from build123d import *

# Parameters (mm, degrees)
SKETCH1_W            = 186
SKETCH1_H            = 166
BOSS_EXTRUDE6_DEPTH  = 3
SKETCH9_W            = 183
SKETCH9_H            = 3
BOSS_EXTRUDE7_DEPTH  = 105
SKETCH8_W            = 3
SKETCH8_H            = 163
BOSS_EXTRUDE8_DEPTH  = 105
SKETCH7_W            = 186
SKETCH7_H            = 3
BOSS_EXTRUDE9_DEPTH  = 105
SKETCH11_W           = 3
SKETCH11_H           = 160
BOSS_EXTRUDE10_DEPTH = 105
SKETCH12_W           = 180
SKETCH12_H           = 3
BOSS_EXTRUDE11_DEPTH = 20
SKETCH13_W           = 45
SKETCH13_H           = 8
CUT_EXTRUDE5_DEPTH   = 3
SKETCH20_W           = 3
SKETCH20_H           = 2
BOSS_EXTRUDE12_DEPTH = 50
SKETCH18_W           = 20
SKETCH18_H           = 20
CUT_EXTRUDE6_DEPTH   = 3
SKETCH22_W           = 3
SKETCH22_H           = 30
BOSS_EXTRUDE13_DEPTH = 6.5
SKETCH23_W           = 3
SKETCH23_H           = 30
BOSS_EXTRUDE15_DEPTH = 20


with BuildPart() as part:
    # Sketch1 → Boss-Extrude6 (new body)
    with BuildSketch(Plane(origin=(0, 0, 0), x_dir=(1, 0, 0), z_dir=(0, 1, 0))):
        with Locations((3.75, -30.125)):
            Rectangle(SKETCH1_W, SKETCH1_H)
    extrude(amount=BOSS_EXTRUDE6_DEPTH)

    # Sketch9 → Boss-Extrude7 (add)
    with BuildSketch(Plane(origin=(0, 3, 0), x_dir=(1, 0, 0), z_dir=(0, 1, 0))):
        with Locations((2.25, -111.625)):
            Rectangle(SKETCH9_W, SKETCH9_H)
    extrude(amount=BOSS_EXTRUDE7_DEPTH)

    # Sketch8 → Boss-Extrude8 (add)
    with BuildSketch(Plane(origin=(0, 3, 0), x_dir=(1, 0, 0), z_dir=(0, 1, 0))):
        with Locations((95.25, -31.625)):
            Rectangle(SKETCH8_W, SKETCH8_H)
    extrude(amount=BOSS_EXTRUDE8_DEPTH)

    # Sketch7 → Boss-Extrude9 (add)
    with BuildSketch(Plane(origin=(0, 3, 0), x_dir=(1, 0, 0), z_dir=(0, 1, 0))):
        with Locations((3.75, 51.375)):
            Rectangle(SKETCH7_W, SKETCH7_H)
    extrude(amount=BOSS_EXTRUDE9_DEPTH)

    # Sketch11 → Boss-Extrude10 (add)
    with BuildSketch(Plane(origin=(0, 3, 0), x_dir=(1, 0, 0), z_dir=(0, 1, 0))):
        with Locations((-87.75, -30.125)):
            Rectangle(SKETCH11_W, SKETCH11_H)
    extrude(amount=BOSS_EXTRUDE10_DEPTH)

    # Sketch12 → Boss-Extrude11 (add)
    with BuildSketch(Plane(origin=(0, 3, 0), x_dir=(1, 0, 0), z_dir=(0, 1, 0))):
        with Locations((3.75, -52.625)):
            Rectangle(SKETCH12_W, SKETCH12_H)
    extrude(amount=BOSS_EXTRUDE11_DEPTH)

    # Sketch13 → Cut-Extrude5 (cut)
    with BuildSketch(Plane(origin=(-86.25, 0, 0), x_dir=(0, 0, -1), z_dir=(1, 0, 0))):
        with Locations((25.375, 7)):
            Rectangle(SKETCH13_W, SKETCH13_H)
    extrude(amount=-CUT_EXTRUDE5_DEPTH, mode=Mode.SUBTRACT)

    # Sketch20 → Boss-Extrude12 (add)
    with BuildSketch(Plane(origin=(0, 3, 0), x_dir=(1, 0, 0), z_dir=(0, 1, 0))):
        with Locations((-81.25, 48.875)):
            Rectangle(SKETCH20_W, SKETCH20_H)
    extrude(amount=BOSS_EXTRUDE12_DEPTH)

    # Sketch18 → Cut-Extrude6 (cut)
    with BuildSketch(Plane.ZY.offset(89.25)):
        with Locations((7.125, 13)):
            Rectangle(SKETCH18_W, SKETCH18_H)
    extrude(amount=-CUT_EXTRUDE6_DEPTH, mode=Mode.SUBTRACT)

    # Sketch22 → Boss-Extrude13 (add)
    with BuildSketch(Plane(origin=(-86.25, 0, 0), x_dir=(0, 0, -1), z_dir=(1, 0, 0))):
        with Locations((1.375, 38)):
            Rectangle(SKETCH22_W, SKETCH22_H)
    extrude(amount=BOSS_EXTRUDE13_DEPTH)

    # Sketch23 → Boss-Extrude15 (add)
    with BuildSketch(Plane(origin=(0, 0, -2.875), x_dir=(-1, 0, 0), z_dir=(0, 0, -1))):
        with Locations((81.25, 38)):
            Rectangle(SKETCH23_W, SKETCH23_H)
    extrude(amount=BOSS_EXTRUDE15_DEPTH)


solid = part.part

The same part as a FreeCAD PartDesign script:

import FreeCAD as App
import Part
import Sketcher
from FreeCAD import Vector

doc = App.newDocument("Part")
params = doc.addObject("Spreadsheet::Sheet", "Params")
for row, (alias, value) in enumerate([
    ("sketch1_width", "186 mm"),
    ("sketch1_height", "166 mm"),
    ("pad1_length", "3 mm"),
    ("sketch2_width", "183 mm"),
    ("sketch2_height", "3 mm"),
    ("pad2_length", "105 mm"),
    ("sketch3_width", "3 mm"),
    ("sketch3_height", "163 mm"),
    ("pad3_length", "105 mm"),
    ("sketch4_width", "186 mm"),
    ("sketch4_height", "3 mm"),
    ("pad4_length", "105 mm"),
    ("sketch5_width", "3 mm"),
    ("sketch5_height", "160 mm"),
    ("pad5_length", "105 mm"),
    ("sketch6_width", "180 mm"),
    ("sketch6_height", "3 mm"),
    ("pad6_length", "20 mm"),
    ("sketch7_width", "8 mm"),
    ("sketch7_height", "45 mm"),
    ("pocket1_length", "3 mm"),
    ("sketch8_width", "3 mm"),
    ("sketch8_height", "2 mm"),
    ("pad7_length", "50 mm"),
    ("sketch9_width", "20 mm"),
    ("pocket2_length", "3 mm"),
    ("sketch10_width", "30 mm"),
    ("sketch10_height", "3 mm"),
    ("pad8_length", "6.5 mm"),
    ("sketch11_width", "3 mm"),
    ("sketch11_height", "30 mm"),
    ("pad9_length", "20 mm"),
], start=1):
    params.set(f"A{row}", alias)
    params.set(f"B{row}", "=" + value)
    params.setAlias(f"B{row}", alias)

body = doc.addObject("PartDesign::Body", "Body")

# Sketch on XZ plane
sketch1 = body.newObject("Sketcher::SketchObject", "Sketch")
sketch1.AttachmentSupport = (doc.getObject("XZ_Plane"), [""])
sketch1.MapMode = "FlatFace"
sketch1.addGeometry(Part.LineSegment(Vector(-89, -53, 0), Vector(-89, 113, 0)), False)
sketch1.addGeometry(Part.LineSegment(Vector(-89, 113, 0), Vector(97, 113, 0)), False)
sketch1.addGeometry(Part.LineSegment(Vector(97, 113, 0), Vector(97, -53, 0)), False)
sketch1.addGeometry(Part.LineSegment(Vector(97, -53, 0), Vector(-89, -53, 0)), False)
sketch1.addConstraint(Sketcher.Constraint("Coincident", 0, 2, 1, 1))
sketch1.addConstraint(Sketcher.Constraint("Coincident", 1, 2, 2, 1))
sketch1.addConstraint(Sketcher.Constraint("Coincident", 2, 2, 3, 1))
sketch1.addConstraint(Sketcher.Constraint("Coincident", 3, 2, 0, 1))
sketch1.addConstraint(Sketcher.Constraint("Vertical", 0))
sketch1.addConstraint(Sketcher.Constraint("Horizontal", 1))
sketch1.addConstraint(Sketcher.Constraint("Vertical", 2))
sketch1.addConstraint(Sketcher.Constraint("Horizontal", 3))
sketch1.addConstraint(Sketcher.Constraint("DistanceX", 1, 1, 1, 2, 186.0))
sketch1.addConstraint(Sketcher.Constraint("DistanceY", 0, 1, 0, 2, 166.0))
sketch1.addConstraint(Sketcher.Constraint("DistanceX", 0, 2, -1, 1, 89.25))
sketch1.addConstraint(Sketcher.Constraint("DistanceY", -1, 1, 0, 2, 113.125))
sketch1.setExpression("Constraints[8]", "Params.sketch1_width")
sketch1.setExpression("Constraints[9]", "Params.sketch1_height")
pad1 = body.newObject("PartDesign::Pad", "Pad")
pad1.Profile = sketch1
pad1.setExpression("Length", "Params.pad1_length")
pad1.Reversed = True

# Sketch on XZ plane
sketch2 = body.newObject("Sketcher::SketchObject", "Sketch001")
sketch2.AttachmentSupport = (doc.getObject("XZ_Plane"), [""])
sketch2.MapMode = "FlatFace"
sketch2.AttachmentOffset = App.Placement(Vector(0, 0, -3), App.Rotation())
sketch2.addGeometry(Part.LineSegment(Vector(-89.2, 110.1, 0), Vector(-89.2, 113.1, 0)), False)
sketch2.addGeometry(Part.LineSegment(Vector(-89.2, 113.1, 0), Vector(93.8, 113.1, 0)), False)
sketch2.addGeometry(Part.LineSegment(Vector(93.8, 113.1, 0), Vector(93.8, 110.1, 0)), False)
sketch2.addGeometry(Part.LineSegment(Vector(93.8, 110.1, 0), Vector(-89.2, 110.1, 0)), False)
sketch2.addConstraint(Sketcher.Constraint("Coincident", 0, 2, 1, 1))
sketch2.addConstraint(Sketcher.Constraint("Coincident", 1, 2, 2, 1))
sketch2.addConstraint(Sketcher.Constraint("Coincident", 2, 2, 3, 1))
sketch2.addConstraint(Sketcher.Constraint("Coincident", 3, 2, 0, 1))
sketch2.addConstraint(Sketcher.Constraint("Vertical", 0))
sketch2.addConstraint(Sketcher.Constraint("Horizontal", 1))
sketch2.addConstraint(Sketcher.Constraint("Vertical", 2))
sketch2.addConstraint(Sketcher.Constraint("Horizontal", 3))
sketch2.addConstraint(Sketcher.Constraint("DistanceX", 1, 1, 1, 2, 183.0))
sketch2.addConstraint(Sketcher.Constraint("DistanceY", 0, 1, 0, 2, 3.0))
sketch2.addConstraint(Sketcher.Constraint("DistanceX", 0, 2, -1, 1, 89.25))
sketch2.addConstraint(Sketcher.Constraint("DistanceY", -1, 1, 0, 2, 113.125))
sketch2.setExpression("Constraints[8]", "Params.sketch2_width")
sketch2.setExpression("Constraints[9]", "Params.sketch2_height")
pad2 = body.newObject("PartDesign::Pad", "Pad001")
pad2.Profile = sketch2
pad2.setExpression("Length", "Params.pad2_length")
pad2.Reversed = True

# Sketch on XZ plane
sketch3 = body.newObject("Sketcher::SketchObject", "Sketch002")
sketch3.AttachmentSupport = (doc.getObject("XZ_Plane"), [""])
sketch3.MapMode = "FlatFace"
sketch3.AttachmentOffset = App.Placement(Vector(0, 0, -3), App.Rotation())
sketch3.addGeometry(Part.LineSegment(Vector(93.8, -49.9, 0), Vector(93.8, 113.1, 0)), False)
sketch3.addGeometry(Part.LineSegment(Vector(93.8, 113.1, 0), Vector(96.8, 113.1, 0)), False)
sketch3.addGeometry(Part.LineSegment(Vector(96.8, 113.1, 0), Vector(96.8, -49.9, 0)), False)
sketch3.addGeometry(Part.LineSegment(Vector(96.8, -49.9, 0), Vector(93.8, -49.9, 0)), False)
sketch3.addConstraint(Sketcher.Constraint("Coincident", 0, 2, 1, 1))
sketch3.addConstraint(Sketcher.Constraint("Coincident", 1, 2, 2, 1))
sketch3.addConstraint(Sketcher.Constraint("Coincident", 2, 2, 3, 1))
sketch3.addConstraint(Sketcher.Constraint("Coincident", 3, 2, 0, 1))
sketch3.addConstraint(Sketcher.Constraint("Vertical", 0))
sketch3.addConstraint(Sketcher.Constraint("Horizontal", 1))
sketch3.addConstraint(Sketcher.Constraint("Vertical", 2))
sketch3.addConstraint(Sketcher.Constraint("Horizontal", 3))
sketch3.addConstraint(Sketcher.Constraint("DistanceX", 1, 1, 1, 2, 3.0))
sketch3.addConstraint(Sketcher.Constraint("DistanceY", 0, 1, 0, 2, 163.0))
sketch3.addConstraint(Sketcher.Constraint("DistanceX", -1, 1, 0, 2, 93.75))
sketch3.addConstraint(Sketcher.Constraint("DistanceY", -1, 1, 0, 2, 113.125))
sketch3.setExpression("Constraints[8]", "Params.sketch3_width")
sketch3.setExpression("Constraints[9]", "Params.sketch3_height")
pad3 = body.newObject("PartDesign::Pad", "Pad002")
pad3.Profile = sketch3
pad3.setExpression("Length", "Params.pad3_length")
pad3.Reversed = True

# Sketch on XZ plane
sketch4 = body.newObject("Sketcher::SketchObject", "Sketch003")
sketch4.AttachmentSupport = (doc.getObject("XZ_Plane"), [""])
sketch4.MapMode = "FlatFace"
sketch4.AttachmentOffset = App.Placement(Vector(0, 0, -3), App.Rotation())
sketch4.addGeometry(Part.LineSegment(Vector(-89.2, -52.9, 0), Vector(-89.2, -49.9, 0)), False)
sketch4.addGeometry(Part.LineSegment(Vector(-89.2, -49.9, 0), Vector(96.8, -49.9, 0)), False)
sketch4.addGeometry(Part.LineSegment(Vector(96.8, -49.9, 0), Vector(96.8, -52.9, 0)), False)
sketch4.addGeometry(Part.LineSegment(Vector(96.8, -52.9, 0), Vector(-89.2, -52.9, 0)), False)
sketch4.addConstraint(Sketcher.Constraint("Coincident", 0, 2, 1, 1))
sketch4.addConstraint(Sketcher.Constraint("Coincident", 1, 2, 2, 1))
sketch4.addConstraint(Sketcher.Constraint("Coincident", 2, 2, 3, 1))
sketch4.addConstraint(Sketcher.Constraint("Coincident", 3, 2, 0, 1))
sketch4.addConstraint(Sketcher.Constraint("Vertical", 0))
sketch4.addConstraint(Sketcher.Constraint("Horizontal", 1))
sketch4.addConstraint(Sketcher.Constraint("Vertical", 2))
sketch4.addConstraint(Sketcher.Constraint("Horizontal", 3))
sketch4.addConstraint(Sketcher.Constraint("DistanceX", 1, 1, 1, 2, 186.0))
sketch4.addConstraint(Sketcher.Constraint("DistanceY", 0, 1, 0, 2, 3.0))
sketch4.addConstraint(Sketcher.Constraint("DistanceX", 0, 2, -1, 1, 89.25))
sketch4.addConstraint(Sketcher.Constraint("DistanceY", 0, 2, -1, 1, 49.875))
sketch4.setExpression("Constraints[8]", "Params.sketch4_width")
sketch4.setExpression("Constraints[9]", "Params.sketch4_height")
pad4 = body.newObject("PartDesign::Pad", "Pad003")
pad4.Profile = sketch4
pad4.setExpression("Length", "Params.pad4_length")
pad4.Reversed = True

# Sketch on XZ plane
sketch5 = body.newObject("Sketcher::SketchObject", "Sketch004")
sketch5.AttachmentSupport = (doc.getObject("XZ_Plane"), [""])
sketch5.MapMode = "FlatFace"
sketch5.AttachmentOffset = App.Placement(Vector(0, 0, -3), App.Rotation())
sketch5.addGeometry(Part.LineSegment(Vector(-89.2, -49.9, 0), Vector(-89.2, 110.1, 0)), False)
sketch5.addGeometry(Part.LineSegment(Vector(-89.2, 110.1, 0), Vector(-86.2, 110.1, 0)), False)
sketch5.addGeometry(Part.LineSegment(Vector(-86.2, 110.1, 0), Vector(-86.2, -49.9, 0)), False)
sketch5.addGeometry(Part.LineSegment(Vector(-86.2, -49.9, 0), Vector(-89.2, -49.9, 0)), False)
sketch5.addConstraint(Sketcher.Constraint("Coincident", 0, 2, 1, 1))
sketch5.addConstraint(Sketcher.Constraint("Coincident", 1, 2, 2, 1))
sketch5.addConstraint(Sketcher.Constraint("Coincident", 2, 2, 3, 1))
sketch5.addConstraint(Sketcher.Constraint("Coincident", 3, 2, 0, 1))
sketch5.addConstraint(Sketcher.Constraint("Vertical", 0))
sketch5.addConstraint(Sketcher.Constraint("Horizontal", 1))
sketch5.addConstraint(Sketcher.Constraint("Vertical", 2))
sketch5.addConstraint(Sketcher.Constraint("Horizontal", 3))
sketch5.addConstraint(Sketcher.Constraint("DistanceX", 1, 1, 1, 2, 3.0))
sketch5.addConstraint(Sketcher.Constraint("DistanceY", 0, 1, 0, 2, 160.0))
sketch5.addConstraint(Sketcher.Constraint("DistanceX", 0, 2, -1, 1, 89.25))
sketch5.addConstraint(Sketcher.Constraint("DistanceY", -1, 1, 0, 2, 110.125))
sketch5.setExpression("Constraints[8]", "Params.sketch5_width")
sketch5.setExpression("Constraints[9]", "Params.sketch5_height")
pad5 = body.newObject("PartDesign::Pad", "Pad004")
pad5.Profile = sketch5
pad5.setExpression("Length", "Params.pad5_length")
pad5.Reversed = True

# Sketch on XZ plane
sketch6 = body.newObject("Sketcher::SketchObject", "Sketch005")
sketch6.AttachmentSupport = (doc.getObject("XZ_Plane"), [""])
sketch6.MapMode = "FlatFace"
sketch6.AttachmentOffset = App.Placement(Vector(0, 0, -3), App.Rotation())
sketch6.addGeometry(Part.LineSegment(Vector(-86.2, 51.1, 0), Vector(-86.2, 54.1, 0)), False)
sketch6.addGeometry(Part.LineSegment(Vector(-86.2, 54.1, 0), Vector(93.8, 54.1, 0)), False)
sketch6.addGeometry(Part.LineSegment(Vector(93.8, 54.1, 0), Vector(93.8, 51.1, 0)), False)
sketch6.addGeometry(Part.LineSegment(Vector(93.8, 51.1, 0), Vector(-86.2, 51.1, 0)), False)
sketch6.addConstraint(Sketcher.Constraint("Coincident", 0, 2, 1, 1))
sketch6.addConstraint(Sketcher.Constraint("Coincident", 1, 2, 2, 1))
sketch6.addConstraint(Sketcher.Constraint("Coincident", 2, 2, 3, 1))
sketch6.addConstraint(Sketcher.Constraint("Coincident", 3, 2, 0, 1))
sketch6.addConstraint(Sketcher.Constraint("Vertical", 0))
sketch6.addConstraint(Sketcher.Constraint("Horizontal", 1))
sketch6.addConstraint(Sketcher.Constraint("Vertical", 2))
sketch6.addConstraint(Sketcher.Constraint("Horizontal", 3))
sketch6.addConstraint(Sketcher.Constraint("DistanceX", 1, 1, 1, 2, 180.0))
sketch6.addConstraint(Sketcher.Constraint("DistanceY", 0, 1, 0, 2, 3.0))
sketch6.addConstraint(Sketcher.Constraint("DistanceX", 0, 2, -1, 1, 86.25))
sketch6.addConstraint(Sketcher.Constraint("DistanceY", -1, 1, 0, 2, 54.125))
sketch6.setExpression("Constraints[8]", "Params.sketch6_width")
sketch6.setExpression("Constraints[9]", "Params.sketch6_height")
pad6 = body.newObject("PartDesign::Pad", "Pad005")
pad6.Profile = sketch6
pad6.setExpression("Length", "Params.pad6_length")
pad6.Reversed = True

# Sketch on YZ plane
sketch7 = body.newObject("Sketcher::SketchObject", "Sketch006")
sketch7.AttachmentSupport = (doc.getObject("YZ_Plane"), [""])
sketch7.MapMode = "FlatFace"
sketch7.AttachmentOffset = App.Placement(Vector(0, 0, -86.25), App.Rotation())
sketch7.addGeometry(Part.LineSegment(Vector(11, -3, 0), Vector(3, -3, 0)), False)
sketch7.addGeometry(Part.LineSegment(Vector(3, -3, 0), Vector(3, -48, 0)), False)
sketch7.addGeometry(Part.LineSegment(Vector(3, -48, 0), Vector(11, -48, 0)), False)
sketch7.addGeometry(Part.LineSegment(Vector(11, -48, 0), Vector(11, -3, 0)), False)
sketch7.addConstraint(Sketcher.Constraint("Coincident", 0, 2, 1, 1))
sketch7.addConstraint(Sketcher.Constraint("Coincident", 1, 2, 2, 1))
sketch7.addConstraint(Sketcher.Constraint("Coincident", 2, 2, 3, 1))
sketch7.addConstraint(Sketcher.Constraint("Coincident", 3, 2, 0, 1))
sketch7.addConstraint(Sketcher.Constraint("Horizontal", 0))
sketch7.addConstraint(Sketcher.Constraint("Vertical", 1))
sketch7.addConstraint(Sketcher.Constraint("Horizontal", 2))
sketch7.addConstraint(Sketcher.Constraint("Vertical", 3))
sketch7.addConstraint(Sketcher.Constraint("DistanceX", 0, 2, 0, 1, 8.0))
sketch7.addConstraint(Sketcher.Constraint("DistanceY", 1, 2, 1, 1, 45.0))
sketch7.addConstraint(Sketcher.Constraint("DistanceX", -1, 1, 0, 2, 3.0))
sketch7.addConstraint(Sketcher.Constraint("DistanceY", 0, 2, -1, 1, 2.875))
sketch7.setExpression("Constraints[8]", "Params.sketch7_width")
sketch7.setExpression("Constraints[9]", "Params.sketch7_height")
pocket1 = body.newObject("PartDesign::Pocket", "Pocket")
pocket1.Profile = sketch7
pocket1.setExpression("Length", "Params.pocket1_length")

# Sketch on XZ plane
sketch8 = body.newObject("Sketcher::SketchObject", "Sketch007")
sketch8.AttachmentSupport = (doc.getObject("XZ_Plane"), [""])
sketch8.MapMode = "FlatFace"
sketch8.AttachmentOffset = App.Placement(Vector(0, 0, -3), App.Rotation())
sketch8.addGeometry(Part.LineSegment(Vector(-82.8, -49.9, 0), Vector(-82.8, -47.9, 0)), False)
sketch8.addGeometry(Part.LineSegment(Vector(-82.8, -47.9, 0), Vector(-79.8, -47.9, 0)), False)
sketch8.addGeometry(Part.LineSegment(Vector(-79.8, -47.9, 0), Vector(-79.8, -49.9, 0)), False)
sketch8.addGeometry(Part.LineSegment(Vector(-79.8, -49.9, 0), Vector(-82.8, -49.9, 0)), False)
sketch8.addConstraint(Sketcher.Constraint("Coincident", 0, 2, 1, 1))
sketch8.addConstraint(Sketcher.Constraint("Coincident", 1, 2, 2, 1))
sketch8.addConstraint(Sketcher.Constraint("Coincident", 2, 2, 3, 1))
sketch8.addConstraint(Sketcher.Constraint("Coincident", 3, 2, 0, 1))
sketch8.addConstraint(Sketcher.Constraint("Vertical", 0))
sketch8.addConstraint(Sketcher.Constraint("Horizontal", 1))
sketch8.addConstraint(Sketcher.Constraint("Vertical", 2))
sketch8.addConstraint(Sketcher.Constraint("Horizontal", 3))
sketch8.addConstraint(Sketcher.Constraint("DistanceX", 1, 1, 1, 2, 3.0))
sketch8.addConstraint(Sketcher.Constraint("DistanceY", 0, 1, 0, 2, 2.0))
sketch8.addConstraint(Sketcher.Constraint("DistanceX", 0, 2, -1, 1, 82.75))
sketch8.addConstraint(Sketcher.Constraint("DistanceY", 0, 2, -1, 1, 47.875))
sketch8.setExpression("Constraints[8]", "Params.sketch8_width")
sketch8.setExpression("Constraints[9]", "Params.sketch8_height")
pad7 = body.newObject("PartDesign::Pad", "Pad006")
pad7.Profile = sketch8
pad7.setExpression("Length", "Params.pad7_length")
pad7.Reversed = True

# Sketch on YZ plane
sketch9 = body.newObject("Sketcher::SketchObject", "Sketch008")
sketch9.AttachmentSupport = (doc.getObject("YZ_Plane"), [""])
sketch9.MapMode = "FlatFace"
sketch9.AttachmentOffset = App.Placement(Vector(0, 0, -89.25), App.Rotation())
sketch9.addGeometry(Part.LineSegment(Vector(23, -3, 0), Vector(3, -3, 0)), False)
sketch9.addGeometry(Part.LineSegment(Vector(3, -3, 0), Vector(3, 17, 0)), False)
sketch9.addGeometry(Part.LineSegment(Vector(3, 17, 0), Vector(23, 17, 0)), False)
sketch9.addGeometry(Part.LineSegment(Vector(23, 17, 0), Vector(23, -3, 0)), False)
sketch9.addConstraint(Sketcher.Constraint("Coincident", 0, 2, 1, 1))
sketch9.addConstraint(Sketcher.Constraint("Coincident", 1, 2, 2, 1))
sketch9.addConstraint(Sketcher.Constraint("Coincident", 2, 2, 3, 1))
sketch9.addConstraint(Sketcher.Constraint("Coincident", 3, 2, 0, 1))
sketch9.addConstraint(Sketcher.Constraint("Horizontal", 0))
sketch9.addConstraint(Sketcher.Constraint("Vertical", 1))
sketch9.addConstraint(Sketcher.Constraint("Horizontal", 2))
sketch9.addConstraint(Sketcher.Constraint("Vertical", 3))
sketch9.addConstraint(Sketcher.Constraint("Equal", 2, 1))
sketch9.addConstraint(Sketcher.Constraint("DistanceX", 0, 2, 0, 1, 20.0))
sketch9.addConstraint(Sketcher.Constraint("DistanceX", -1, 1, 0, 2, 3.0))
sketch9.addConstraint(Sketcher.Constraint("DistanceY", 0, 2, -1, 1, 2.875))
sketch9.setExpression("Constraints[9]", "Params.sketch9_width")
pocket2 = body.newObject("PartDesign::Pocket", "Pocket001")
pocket2.Profile = sketch9
pocket2.setExpression("Length", "Params.pocket2_length")
pocket2.Reversed = True

# Sketch on YZ plane
sketch10 = body.newObject("Sketcher::SketchObject", "Sketch009")
sketch10.AttachmentSupport = (doc.getObject("YZ_Plane"), [""])
sketch10.MapMode = "FlatFace"
sketch10.AttachmentOffset = App.Placement(Vector(0, 0, -86.25), App.Rotation())
sketch10.addGeometry(Part.LineSegment(Vector(53, 0.1, 0), Vector(23, 0.1, 0)), False)
sketch10.addGeometry(Part.LineSegment(Vector(23, 0.1, 0), Vector(23, -2.9, 0)), False)
sketch10.addGeometry(Part.LineSegment(Vector(23, -2.9, 0), Vector(53, -2.9, 0)), False)
sketch10.addGeometry(Part.LineSegment(Vector(53, -2.9, 0), Vector(53, 0.1, 0)), False)
sketch10.addConstraint(Sketcher.Constraint("Coincident", 0, 2, 1, 1))
sketch10.addConstraint(Sketcher.Constraint("Coincident", 1, 2, 2, 1))
sketch10.addConstraint(Sketcher.Constraint("Coincident", 2, 2, 3, 1))
sketch10.addConstraint(Sketcher.Constraint("Coincident", 3, 2, 0, 1))
sketch10.addConstraint(Sketcher.Constraint("Horizontal", 0))
sketch10.addConstraint(Sketcher.Constraint("Vertical", 1))
sketch10.addConstraint(Sketcher.Constraint("Horizontal", 2))
sketch10.addConstraint(Sketcher.Constraint("Vertical", 3))
sketch10.addConstraint(Sketcher.Constraint("DistanceX", 0, 2, 0, 1, 30.0))
sketch10.addConstraint(Sketcher.Constraint("DistanceY", 1, 2, 1, 1, 3.0))
sketch10.addConstraint(Sketcher.Constraint("DistanceX", -1, 1, 0, 2, 23.0))
sketch10.addConstraint(Sketcher.Constraint("DistanceY", -1, 1, 0, 2, 0.125))
sketch10.setExpression("Constraints[8]", "Params.sketch10_width")
sketch10.setExpression("Constraints[9]", "Params.sketch10_height")
pad8 = body.newObject("PartDesign::Pad", "Pad007")
pad8.Profile = sketch10
pad8.setExpression("Length", "Params.pad8_length")

# Sketch on XY plane
sketch11 = body.newObject("Sketcher::SketchObject", "Sketch010")
sketch11.AttachmentSupport = (doc.getObject("XY_Plane"), [""])
sketch11.MapMode = "FlatFace"
sketch11.AttachmentOffset = App.Placement(Vector(0, 0, -2.875), App.Rotation())
sketch11.addGeometry(Part.LineSegment(Vector(-79.8, 53, 0), Vector(-79.8, 23, 0)), False)
sketch11.addGeometry(Part.LineSegment(Vector(-79.8, 23, 0), Vector(-82.8, 23, 0)), False)
sketch11.addGeometry(Part.LineSegment(Vector(-82.8, 23, 0), Vector(-82.8, 53, 0)), False)
sketch11.addGeometry(Part.LineSegment(Vector(-82.8, 53, 0), Vector(-79.8, 53, 0)), False)
sketch11.addConstraint(Sketcher.Constraint("Coincident", 0, 2, 1, 1))
sketch11.addConstraint(Sketcher.Constraint("Coincident", 1, 2, 2, 1))
sketch11.addConstraint(Sketcher.Constraint("Coincident", 2, 2, 3, 1))
sketch11.addConstraint(Sketcher.Constraint("Coincident", 3, 2, 0, 1))
sketch11.addConstraint(Sketcher.Constraint("Vertical", 0))
sketch11.addConstraint(Sketcher.Constraint("Horizontal", 1))
sketch11.addConstraint(Sketcher.Constraint("Vertical", 2))
sketch11.addConstraint(Sketcher.Constraint("Horizontal", 3))
sketch11.addConstraint(Sketcher.Constraint("DistanceX", 1, 2, 1, 1, 3.0))
sketch11.addConstraint(Sketcher.Constraint("DistanceY", 0, 2, 0, 1, 30.0))
sketch11.addConstraint(Sketcher.Constraint("DistanceY", -1, 1, 0, 2, 23.0))
sketch11.addConstraint(Sketcher.Constraint("DistanceX", 0, 2, -1, 1, 79.75))
sketch11.setExpression("Constraints[8]", "Params.sketch11_width")
sketch11.setExpression("Constraints[9]", "Params.sketch11_height")
pad9 = body.newObject("PartDesign::Pad", "Pad008")
pad9.Profile = sketch11
pad9.setExpression("Length", "Params.pad9_length")
pad9.Reversed = True

doc.recompute()
